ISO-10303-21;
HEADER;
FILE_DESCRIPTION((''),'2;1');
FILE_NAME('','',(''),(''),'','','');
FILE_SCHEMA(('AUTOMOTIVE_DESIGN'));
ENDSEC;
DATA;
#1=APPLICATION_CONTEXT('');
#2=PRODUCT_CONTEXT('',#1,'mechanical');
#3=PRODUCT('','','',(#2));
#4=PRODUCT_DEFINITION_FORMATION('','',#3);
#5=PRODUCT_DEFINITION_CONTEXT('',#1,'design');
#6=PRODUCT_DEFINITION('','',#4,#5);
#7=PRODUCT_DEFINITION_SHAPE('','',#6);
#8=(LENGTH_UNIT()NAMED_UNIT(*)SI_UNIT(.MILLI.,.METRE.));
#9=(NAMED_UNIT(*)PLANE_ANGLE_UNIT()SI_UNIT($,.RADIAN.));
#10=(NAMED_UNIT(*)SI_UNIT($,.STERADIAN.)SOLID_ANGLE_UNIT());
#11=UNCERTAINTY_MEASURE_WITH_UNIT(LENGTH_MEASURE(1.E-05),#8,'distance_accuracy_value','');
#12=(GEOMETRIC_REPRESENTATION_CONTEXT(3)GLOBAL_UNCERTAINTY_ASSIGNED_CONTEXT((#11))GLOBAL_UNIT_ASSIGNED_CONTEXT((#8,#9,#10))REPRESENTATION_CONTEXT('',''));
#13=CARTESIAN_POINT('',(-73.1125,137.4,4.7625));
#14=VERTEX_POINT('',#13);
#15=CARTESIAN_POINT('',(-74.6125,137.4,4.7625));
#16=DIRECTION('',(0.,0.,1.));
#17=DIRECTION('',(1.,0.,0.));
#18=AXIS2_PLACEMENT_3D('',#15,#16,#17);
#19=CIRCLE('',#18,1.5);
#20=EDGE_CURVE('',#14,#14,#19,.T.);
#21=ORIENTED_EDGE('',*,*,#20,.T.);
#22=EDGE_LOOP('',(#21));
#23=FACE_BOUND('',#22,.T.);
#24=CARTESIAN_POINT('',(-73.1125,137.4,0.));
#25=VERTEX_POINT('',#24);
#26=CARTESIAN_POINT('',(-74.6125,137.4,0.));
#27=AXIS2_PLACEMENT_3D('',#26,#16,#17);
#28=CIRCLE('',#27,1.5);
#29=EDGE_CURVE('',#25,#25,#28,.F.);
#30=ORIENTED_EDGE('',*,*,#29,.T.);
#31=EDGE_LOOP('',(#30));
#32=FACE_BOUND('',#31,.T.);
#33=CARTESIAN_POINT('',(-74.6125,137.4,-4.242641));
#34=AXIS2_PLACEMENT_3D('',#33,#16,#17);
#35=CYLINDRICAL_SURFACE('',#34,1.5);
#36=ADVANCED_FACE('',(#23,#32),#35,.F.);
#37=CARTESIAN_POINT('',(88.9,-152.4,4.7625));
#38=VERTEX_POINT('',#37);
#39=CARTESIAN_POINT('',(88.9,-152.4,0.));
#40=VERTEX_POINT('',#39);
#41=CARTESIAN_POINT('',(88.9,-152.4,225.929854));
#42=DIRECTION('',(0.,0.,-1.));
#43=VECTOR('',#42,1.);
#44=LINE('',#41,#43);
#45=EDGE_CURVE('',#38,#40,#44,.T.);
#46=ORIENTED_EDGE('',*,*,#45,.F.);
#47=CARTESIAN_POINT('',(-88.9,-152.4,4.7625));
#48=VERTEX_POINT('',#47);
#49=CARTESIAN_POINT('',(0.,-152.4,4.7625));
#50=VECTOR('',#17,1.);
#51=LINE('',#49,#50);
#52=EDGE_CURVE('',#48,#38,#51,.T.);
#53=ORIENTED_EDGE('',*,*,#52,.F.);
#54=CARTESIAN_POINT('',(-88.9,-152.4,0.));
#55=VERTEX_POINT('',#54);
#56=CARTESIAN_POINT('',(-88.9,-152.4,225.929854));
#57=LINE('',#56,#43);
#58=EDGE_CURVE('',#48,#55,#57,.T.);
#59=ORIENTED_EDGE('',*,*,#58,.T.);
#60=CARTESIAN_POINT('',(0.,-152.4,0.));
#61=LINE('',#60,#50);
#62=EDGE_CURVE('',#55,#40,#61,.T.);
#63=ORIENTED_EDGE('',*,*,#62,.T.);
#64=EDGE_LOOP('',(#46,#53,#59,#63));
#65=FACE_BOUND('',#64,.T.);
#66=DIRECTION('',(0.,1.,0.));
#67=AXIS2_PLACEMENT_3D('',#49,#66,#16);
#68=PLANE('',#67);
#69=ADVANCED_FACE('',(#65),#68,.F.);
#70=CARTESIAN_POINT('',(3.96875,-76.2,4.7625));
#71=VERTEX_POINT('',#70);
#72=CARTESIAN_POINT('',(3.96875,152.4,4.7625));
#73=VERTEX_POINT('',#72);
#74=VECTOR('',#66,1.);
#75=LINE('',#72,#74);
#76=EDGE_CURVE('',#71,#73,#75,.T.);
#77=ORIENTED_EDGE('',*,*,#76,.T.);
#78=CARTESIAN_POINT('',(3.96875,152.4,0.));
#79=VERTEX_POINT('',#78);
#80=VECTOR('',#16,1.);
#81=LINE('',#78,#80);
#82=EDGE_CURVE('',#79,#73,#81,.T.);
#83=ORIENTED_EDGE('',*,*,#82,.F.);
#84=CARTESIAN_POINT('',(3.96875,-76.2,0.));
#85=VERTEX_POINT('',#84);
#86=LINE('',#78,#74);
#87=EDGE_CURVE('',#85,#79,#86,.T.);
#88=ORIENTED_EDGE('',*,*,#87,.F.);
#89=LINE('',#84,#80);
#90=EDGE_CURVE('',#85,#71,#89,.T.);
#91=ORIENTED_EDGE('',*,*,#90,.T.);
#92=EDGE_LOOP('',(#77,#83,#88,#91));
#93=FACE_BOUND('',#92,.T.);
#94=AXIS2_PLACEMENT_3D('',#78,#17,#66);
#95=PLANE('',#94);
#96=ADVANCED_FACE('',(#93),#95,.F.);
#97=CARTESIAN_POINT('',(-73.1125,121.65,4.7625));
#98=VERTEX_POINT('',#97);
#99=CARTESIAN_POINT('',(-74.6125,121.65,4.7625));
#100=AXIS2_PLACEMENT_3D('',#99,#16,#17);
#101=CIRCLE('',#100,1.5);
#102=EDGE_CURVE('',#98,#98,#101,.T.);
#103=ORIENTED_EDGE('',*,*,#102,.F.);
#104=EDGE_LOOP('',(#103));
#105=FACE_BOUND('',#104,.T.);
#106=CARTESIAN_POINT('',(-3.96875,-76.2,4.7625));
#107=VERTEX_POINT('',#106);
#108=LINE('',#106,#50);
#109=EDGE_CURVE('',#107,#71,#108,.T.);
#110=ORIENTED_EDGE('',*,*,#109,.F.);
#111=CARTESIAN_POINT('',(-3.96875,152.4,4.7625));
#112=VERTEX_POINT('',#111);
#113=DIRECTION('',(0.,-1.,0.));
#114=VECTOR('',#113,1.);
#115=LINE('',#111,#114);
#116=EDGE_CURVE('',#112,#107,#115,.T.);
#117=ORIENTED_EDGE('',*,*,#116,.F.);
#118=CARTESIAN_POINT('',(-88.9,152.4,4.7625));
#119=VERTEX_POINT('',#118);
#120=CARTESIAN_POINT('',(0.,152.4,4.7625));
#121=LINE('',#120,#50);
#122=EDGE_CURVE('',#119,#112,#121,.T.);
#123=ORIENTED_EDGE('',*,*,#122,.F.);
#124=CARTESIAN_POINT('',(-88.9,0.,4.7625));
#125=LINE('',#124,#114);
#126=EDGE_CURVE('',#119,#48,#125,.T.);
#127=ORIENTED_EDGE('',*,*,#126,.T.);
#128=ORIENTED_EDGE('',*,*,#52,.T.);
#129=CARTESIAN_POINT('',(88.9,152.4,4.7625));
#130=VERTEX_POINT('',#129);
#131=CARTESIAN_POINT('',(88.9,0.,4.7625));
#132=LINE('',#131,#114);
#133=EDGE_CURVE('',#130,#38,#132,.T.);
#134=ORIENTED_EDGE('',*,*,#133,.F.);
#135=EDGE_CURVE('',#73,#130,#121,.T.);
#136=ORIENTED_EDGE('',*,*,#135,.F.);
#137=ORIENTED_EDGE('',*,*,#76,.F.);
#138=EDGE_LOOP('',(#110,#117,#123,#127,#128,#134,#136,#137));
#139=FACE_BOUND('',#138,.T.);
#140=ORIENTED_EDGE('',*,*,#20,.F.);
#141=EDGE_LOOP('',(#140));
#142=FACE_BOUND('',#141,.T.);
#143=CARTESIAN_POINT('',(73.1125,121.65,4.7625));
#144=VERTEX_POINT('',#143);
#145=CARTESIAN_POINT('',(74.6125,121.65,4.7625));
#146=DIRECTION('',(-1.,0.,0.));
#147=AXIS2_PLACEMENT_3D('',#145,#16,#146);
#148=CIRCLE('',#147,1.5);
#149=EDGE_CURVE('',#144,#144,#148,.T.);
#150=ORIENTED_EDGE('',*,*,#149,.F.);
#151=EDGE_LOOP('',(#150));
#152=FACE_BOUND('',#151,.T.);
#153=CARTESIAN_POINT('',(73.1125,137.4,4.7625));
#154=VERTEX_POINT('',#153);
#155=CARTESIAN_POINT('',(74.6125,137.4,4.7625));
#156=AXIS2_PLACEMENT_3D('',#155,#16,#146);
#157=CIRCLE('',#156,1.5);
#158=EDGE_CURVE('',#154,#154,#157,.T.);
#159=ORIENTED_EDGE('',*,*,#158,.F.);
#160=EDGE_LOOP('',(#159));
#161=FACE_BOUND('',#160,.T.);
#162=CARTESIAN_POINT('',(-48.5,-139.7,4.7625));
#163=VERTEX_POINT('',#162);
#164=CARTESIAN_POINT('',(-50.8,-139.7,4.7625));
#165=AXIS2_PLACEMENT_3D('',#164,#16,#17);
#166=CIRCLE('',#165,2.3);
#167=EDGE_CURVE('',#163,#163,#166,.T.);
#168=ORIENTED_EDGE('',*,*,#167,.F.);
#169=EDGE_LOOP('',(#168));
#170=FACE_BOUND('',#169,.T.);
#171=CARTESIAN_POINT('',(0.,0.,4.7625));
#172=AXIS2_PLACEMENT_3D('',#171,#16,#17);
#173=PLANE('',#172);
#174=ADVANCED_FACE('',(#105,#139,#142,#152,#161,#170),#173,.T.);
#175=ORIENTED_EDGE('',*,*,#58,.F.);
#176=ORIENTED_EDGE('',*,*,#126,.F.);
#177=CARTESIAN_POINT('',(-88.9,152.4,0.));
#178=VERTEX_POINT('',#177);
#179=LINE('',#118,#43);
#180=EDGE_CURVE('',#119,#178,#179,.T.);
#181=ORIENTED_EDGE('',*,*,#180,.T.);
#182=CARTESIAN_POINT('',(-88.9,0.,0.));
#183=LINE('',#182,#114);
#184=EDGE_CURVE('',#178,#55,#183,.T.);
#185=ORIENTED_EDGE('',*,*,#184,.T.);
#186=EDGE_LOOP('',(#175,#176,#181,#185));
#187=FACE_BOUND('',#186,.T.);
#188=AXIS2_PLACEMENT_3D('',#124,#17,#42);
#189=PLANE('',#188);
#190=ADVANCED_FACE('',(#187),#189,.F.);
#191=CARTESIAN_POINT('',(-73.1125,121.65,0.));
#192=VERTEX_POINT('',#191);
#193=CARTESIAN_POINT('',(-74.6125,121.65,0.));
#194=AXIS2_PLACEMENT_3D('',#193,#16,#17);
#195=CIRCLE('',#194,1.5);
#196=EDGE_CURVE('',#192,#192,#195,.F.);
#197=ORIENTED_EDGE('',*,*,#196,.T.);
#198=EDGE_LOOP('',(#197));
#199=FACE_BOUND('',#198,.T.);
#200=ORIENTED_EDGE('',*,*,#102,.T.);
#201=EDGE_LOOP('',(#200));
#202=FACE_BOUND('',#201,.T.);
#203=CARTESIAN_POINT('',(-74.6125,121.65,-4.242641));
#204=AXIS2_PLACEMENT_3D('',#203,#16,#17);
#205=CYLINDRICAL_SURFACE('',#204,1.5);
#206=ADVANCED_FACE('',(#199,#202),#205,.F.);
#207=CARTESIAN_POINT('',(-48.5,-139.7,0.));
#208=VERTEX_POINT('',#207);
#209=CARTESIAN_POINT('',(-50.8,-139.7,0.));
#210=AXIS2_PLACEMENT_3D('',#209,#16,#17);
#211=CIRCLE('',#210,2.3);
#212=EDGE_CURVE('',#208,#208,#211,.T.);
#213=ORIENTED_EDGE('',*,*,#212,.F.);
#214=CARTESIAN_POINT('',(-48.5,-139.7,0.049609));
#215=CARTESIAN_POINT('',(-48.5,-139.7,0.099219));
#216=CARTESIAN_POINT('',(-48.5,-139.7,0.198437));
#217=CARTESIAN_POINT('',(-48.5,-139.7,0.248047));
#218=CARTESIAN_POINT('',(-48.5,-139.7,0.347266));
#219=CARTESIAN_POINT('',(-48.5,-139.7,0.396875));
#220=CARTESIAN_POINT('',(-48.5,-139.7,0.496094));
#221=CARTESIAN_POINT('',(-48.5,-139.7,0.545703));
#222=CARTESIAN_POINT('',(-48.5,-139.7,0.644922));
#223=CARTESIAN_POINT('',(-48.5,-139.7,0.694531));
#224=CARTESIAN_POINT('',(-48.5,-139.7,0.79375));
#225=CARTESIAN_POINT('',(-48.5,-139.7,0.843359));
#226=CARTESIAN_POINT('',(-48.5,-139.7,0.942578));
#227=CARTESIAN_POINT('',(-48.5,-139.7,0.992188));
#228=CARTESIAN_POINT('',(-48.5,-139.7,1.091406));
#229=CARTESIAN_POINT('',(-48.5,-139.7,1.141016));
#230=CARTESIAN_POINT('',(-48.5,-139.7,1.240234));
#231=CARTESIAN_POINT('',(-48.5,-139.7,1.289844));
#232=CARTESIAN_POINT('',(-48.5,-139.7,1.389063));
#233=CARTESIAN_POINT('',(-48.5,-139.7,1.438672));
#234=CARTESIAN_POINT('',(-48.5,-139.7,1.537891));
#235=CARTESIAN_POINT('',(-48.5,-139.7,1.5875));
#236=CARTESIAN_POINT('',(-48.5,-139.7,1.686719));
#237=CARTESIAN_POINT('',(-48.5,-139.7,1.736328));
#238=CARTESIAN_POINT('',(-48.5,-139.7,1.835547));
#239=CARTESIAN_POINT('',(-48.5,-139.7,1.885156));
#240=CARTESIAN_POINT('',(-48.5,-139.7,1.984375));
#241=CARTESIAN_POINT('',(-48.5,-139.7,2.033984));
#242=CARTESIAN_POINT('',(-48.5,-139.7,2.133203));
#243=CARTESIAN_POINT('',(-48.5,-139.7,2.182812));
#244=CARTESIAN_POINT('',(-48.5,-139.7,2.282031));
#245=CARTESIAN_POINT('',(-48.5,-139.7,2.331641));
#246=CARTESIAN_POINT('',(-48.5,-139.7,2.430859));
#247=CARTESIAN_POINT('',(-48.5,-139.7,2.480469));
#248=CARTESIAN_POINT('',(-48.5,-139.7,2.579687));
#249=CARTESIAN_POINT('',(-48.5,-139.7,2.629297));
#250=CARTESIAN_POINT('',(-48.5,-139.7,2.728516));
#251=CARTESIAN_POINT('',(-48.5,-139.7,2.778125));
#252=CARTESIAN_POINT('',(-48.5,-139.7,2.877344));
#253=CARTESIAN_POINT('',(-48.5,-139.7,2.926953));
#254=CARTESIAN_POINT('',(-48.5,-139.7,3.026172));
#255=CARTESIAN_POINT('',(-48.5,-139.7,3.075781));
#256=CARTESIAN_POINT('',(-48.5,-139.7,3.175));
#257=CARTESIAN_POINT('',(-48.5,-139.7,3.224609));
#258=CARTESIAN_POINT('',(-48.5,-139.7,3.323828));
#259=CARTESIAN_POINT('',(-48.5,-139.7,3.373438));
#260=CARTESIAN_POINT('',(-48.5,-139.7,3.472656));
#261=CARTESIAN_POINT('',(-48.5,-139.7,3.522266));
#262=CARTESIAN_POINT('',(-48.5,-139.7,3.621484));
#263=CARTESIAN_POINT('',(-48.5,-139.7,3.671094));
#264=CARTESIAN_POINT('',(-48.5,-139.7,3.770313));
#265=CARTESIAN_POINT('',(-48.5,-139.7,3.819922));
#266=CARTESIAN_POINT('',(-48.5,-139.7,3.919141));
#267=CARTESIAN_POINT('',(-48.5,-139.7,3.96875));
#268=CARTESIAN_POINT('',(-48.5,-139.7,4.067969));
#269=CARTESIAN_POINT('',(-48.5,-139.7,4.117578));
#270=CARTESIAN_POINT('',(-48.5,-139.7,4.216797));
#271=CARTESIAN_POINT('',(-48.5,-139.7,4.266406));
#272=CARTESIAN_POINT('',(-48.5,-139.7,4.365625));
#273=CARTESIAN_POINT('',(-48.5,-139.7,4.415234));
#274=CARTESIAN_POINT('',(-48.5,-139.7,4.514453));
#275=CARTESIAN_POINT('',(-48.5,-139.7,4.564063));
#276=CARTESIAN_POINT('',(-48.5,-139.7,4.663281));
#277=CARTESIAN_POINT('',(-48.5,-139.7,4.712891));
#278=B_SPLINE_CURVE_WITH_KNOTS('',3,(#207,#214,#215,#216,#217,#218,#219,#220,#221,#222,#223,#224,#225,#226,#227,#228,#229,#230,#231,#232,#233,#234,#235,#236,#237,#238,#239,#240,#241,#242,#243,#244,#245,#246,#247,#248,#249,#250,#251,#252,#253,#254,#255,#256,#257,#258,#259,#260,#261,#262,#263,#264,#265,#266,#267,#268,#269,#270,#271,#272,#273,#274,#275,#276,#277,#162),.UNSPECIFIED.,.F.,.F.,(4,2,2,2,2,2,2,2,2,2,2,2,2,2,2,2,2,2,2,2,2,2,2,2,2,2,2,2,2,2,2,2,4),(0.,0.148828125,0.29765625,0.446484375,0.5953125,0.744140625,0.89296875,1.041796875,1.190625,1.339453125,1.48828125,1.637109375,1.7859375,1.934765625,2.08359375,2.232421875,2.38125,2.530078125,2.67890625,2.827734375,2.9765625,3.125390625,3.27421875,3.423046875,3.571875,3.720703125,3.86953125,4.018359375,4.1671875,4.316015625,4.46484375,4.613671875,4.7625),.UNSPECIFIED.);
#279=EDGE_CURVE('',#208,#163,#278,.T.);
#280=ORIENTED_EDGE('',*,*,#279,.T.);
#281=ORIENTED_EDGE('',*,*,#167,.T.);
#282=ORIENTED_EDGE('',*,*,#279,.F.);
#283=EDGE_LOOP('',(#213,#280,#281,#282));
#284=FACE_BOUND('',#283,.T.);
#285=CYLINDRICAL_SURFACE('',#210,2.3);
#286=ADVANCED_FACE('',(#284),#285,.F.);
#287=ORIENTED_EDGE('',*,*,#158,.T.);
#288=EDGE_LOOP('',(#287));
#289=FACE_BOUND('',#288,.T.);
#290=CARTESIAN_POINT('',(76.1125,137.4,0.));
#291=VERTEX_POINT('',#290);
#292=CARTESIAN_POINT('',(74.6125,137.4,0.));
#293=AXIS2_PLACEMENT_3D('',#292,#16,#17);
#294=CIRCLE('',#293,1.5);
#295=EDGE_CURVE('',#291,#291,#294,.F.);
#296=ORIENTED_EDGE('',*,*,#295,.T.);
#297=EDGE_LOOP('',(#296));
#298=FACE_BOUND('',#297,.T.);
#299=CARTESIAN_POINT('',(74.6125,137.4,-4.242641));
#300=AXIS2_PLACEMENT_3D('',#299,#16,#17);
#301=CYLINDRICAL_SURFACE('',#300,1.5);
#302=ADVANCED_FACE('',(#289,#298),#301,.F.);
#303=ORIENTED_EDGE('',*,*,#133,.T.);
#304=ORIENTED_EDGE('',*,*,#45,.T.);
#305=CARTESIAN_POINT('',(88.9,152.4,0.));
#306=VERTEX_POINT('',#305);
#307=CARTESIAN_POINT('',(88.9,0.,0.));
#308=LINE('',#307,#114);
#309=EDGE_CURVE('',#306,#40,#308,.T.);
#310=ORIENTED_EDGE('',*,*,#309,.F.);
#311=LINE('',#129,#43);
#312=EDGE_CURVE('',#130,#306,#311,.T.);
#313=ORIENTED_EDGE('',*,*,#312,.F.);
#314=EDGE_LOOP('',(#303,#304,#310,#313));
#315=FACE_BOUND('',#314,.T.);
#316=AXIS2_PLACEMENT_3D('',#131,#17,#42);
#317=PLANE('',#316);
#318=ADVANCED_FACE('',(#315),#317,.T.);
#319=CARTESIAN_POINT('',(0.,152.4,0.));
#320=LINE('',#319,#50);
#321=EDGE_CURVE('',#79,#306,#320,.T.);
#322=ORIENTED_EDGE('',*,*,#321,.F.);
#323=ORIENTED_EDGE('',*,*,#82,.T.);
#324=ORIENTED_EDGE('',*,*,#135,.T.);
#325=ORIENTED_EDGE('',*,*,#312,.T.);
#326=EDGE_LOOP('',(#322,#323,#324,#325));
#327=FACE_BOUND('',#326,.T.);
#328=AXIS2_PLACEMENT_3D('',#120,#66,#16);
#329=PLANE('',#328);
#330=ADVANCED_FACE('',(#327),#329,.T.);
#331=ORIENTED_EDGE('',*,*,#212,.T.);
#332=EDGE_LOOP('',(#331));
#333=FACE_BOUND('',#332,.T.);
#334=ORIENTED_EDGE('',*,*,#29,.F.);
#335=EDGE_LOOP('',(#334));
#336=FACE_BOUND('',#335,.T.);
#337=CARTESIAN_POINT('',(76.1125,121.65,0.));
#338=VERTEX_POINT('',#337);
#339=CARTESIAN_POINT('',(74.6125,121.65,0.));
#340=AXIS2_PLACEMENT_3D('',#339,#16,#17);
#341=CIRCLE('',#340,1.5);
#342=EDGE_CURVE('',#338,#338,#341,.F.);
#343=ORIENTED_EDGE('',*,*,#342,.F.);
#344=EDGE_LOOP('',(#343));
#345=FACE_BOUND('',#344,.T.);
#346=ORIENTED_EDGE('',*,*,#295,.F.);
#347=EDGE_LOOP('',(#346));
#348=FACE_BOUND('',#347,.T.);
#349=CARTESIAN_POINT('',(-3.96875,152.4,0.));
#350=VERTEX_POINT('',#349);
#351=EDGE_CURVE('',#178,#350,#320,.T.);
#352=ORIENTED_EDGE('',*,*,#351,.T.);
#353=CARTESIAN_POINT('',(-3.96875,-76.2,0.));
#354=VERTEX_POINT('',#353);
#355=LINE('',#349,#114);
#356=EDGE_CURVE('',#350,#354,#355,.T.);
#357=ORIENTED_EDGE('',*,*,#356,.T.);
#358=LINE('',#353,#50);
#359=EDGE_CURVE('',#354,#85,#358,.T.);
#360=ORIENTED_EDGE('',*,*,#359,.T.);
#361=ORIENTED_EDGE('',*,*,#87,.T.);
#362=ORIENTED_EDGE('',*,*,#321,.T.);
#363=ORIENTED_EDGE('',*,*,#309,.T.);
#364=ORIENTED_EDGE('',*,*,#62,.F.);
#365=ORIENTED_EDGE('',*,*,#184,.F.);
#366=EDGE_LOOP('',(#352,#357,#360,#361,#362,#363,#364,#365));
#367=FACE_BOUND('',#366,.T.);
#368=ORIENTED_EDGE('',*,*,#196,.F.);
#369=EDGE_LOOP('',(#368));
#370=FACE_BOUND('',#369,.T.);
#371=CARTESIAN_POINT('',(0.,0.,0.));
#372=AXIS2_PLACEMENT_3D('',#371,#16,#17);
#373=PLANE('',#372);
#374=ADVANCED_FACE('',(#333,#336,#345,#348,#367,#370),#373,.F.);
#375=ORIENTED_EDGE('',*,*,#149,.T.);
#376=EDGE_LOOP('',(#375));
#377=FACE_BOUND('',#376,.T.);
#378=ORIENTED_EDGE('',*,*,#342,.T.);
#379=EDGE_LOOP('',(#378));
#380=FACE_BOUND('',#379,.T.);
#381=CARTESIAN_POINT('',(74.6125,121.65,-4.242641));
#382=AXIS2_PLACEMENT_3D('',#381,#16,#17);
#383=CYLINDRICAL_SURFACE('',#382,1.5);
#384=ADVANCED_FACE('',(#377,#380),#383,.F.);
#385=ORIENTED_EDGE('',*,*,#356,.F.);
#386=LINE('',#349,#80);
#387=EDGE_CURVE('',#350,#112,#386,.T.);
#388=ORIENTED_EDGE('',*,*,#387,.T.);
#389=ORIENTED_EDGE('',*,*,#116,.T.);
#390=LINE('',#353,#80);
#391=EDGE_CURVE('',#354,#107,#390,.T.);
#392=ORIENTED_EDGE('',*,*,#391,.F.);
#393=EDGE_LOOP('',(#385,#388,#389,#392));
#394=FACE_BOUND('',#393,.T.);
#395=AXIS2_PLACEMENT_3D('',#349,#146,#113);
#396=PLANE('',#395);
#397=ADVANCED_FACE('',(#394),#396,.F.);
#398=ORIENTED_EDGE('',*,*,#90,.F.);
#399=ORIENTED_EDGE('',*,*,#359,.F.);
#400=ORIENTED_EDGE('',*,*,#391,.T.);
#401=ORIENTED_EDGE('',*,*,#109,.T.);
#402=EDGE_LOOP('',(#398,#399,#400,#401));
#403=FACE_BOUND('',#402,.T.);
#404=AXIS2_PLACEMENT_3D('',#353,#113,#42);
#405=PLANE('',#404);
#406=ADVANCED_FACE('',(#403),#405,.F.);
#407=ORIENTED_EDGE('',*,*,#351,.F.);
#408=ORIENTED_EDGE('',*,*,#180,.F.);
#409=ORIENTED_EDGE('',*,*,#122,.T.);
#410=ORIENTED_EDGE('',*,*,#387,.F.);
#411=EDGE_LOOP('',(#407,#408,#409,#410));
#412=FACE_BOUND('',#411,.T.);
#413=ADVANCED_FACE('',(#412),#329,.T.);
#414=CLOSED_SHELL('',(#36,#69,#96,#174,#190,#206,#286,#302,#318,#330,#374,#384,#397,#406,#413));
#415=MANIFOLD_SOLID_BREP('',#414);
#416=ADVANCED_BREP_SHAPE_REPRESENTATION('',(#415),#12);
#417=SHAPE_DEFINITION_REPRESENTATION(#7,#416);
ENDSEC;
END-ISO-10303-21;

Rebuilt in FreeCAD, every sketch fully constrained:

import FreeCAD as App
import Part
import Sketcher

V = App.Vector
Q = App.Units.Quantity

doc = App.newDocument("Part")
body = doc.addObject("PartDesign::Body", "Body")

# Sketch on XY plane
sketch1 = doc.addObject("Sketcher::SketchObject", "Sketch")
body.addObject(sketch1)
sketch1.AttachmentSupport = (doc.XY_Plane, [""])
sketch1.MapMode = "FlatFace"
sketch1.addGeometry([
    Part.LineSegment(V(-88.9, 152.4, 0), V(-88.9, 108.2, 0)),  # 0
    Part.LineSegment(V(-88.9, 108.2, 0), V(-93.7, 108.2, 0)),  # 1
    Part.LineSegment(V(-93.7, 108.2, 0), V(-93.7, 64, 0)),  # 2
    Part.LineSegment(V(-93.7, 64, 0), V(-88.9, 64, 0)),  # 3
    Part.LineSegment(V(-88.9, 64, 0), V(-88.9, 19.7, 0)),  # 4
    Part.LineSegment(V(-88.9, 19.7, 0), V(-93.7, 19.7, 0)),  # 5
    Part.LineSegment(V(-93.7, 19.7, 0), V(-93.7, -24.5, 0)),  # 6
    Part.LineSegment(V(-93.7, -24.5, 0), V(-88.9, -24.5, 0)),  # 7
    Part.LineSegment(V(-88.9, -24.5, 0), V(-88.9, -68.7, 0)),  # 8
    Part.LineSegment(V(-88.9, -68.7, 0), V(-93.7, -68.7, 0)),  # 9
    Part.LineSegment(V(-93.7, -68.7, 0), V(-93.7, -112.9, 0)),  # 10
    Part.LineSegment(V(-93.7, -112.9, 0), V(-88.9, -112.9, 0)),  # 11
    Part.LineSegment(V(-88.9, -112.9, 0), V(-88.9, -157.2, 0)),  # 12
    Part.LineSegment(V(-88.9, -157.2, 0), V(-66.9, -157.2, 0)),  # 13
    Part.LineSegment(V(-66.9, -157.2, 0), V(-66.9, -152.4, 0)),  # 14
    Part.LineSegment(V(-66.9, -152.4, 0), V(-40.1, -152.4, 0)),  # 15
    Part.LineSegment(V(-40.1, -152.4, 0), V(-40.1, -157.2, 0)),  # 16
    Part.LineSegment(V(-40.1, -157.2, 0), V(-13.4, -157.2, 0)),  # 17
    Part.LineSegment(V(-13.4, -157.2, 0), V(-13.4, -152.4, 0)),  # 18
    Part.LineSegment(V(-13.4, -152.4, 0), V(13.4, -152.4, 0)),  # 19
    Part.LineSegment(V(13.4, -152.4, 0), V(13.4, -157.2, 0)),  # 20
    Part.LineSegment(V(13.4, -157.2, 0), V(40.1, -157.2, 0)),  # 21
    Part.LineSegment(V(40.1, -157.2, 0), V(40.1, -152.4, 0)),  # 22
    Part.LineSegment(V(40.1, -152.4, 0), V(66.9, -152.4, 0)),  # 23
    Part.LineSegment(V(66.9, -152.4, 0), V(66.9, -157.2, 0)),  # 24
    Part.LineSegment(V(66.9, -157.2, 0), V(88.9, -157.2, 0)),  # 25
    Part.LineSegment(V(88.9, -157.2, 0), V(88.9, -112.9, 0)),  # 26
    Part.LineSegment(V(88.9, -112.9, 0), V(93.7, -112.9, 0)),  # 27
    Part.LineSegment(V(93.7, -112.9, 0), V(93.7, -68.7, 0)),  # 28
    Part.LineSegment(V(93.7, -68.7, 0), V(88.9, -68.7, 0)),  # 29
    Part.LineSegment(V(88.9, -68.7, 0), V(88.9, -24.5, 0)),  # 30
    Part.LineSegment(V(88.9, -24.5, 0), V(93.7, -24.5, 0)),  # 31
    Part.LineSegment(V(93.7, -24.5, 0), V(93.7, 19.7, 0)),  # 32
    Part.LineSegment(V(93.7, 19.7, 0), V(88.9, 19.7, 0)),  # 33
    Part.LineSegment(V(88.9, 19.7, 0), V(88.9, 64, 0)),  # 34
    Part.LineSegment(V(88.9, 64, 0), V(93.7, 64, 0)),  # 35
    Part.LineSegment(V(93.7, 64, 0), V(93.7, 108.2, 0)),  # 36
    Part.LineSegment(V(93.7, 108.2, 0), V(88.9, 108.2, 0)),  # 37
    Part.LineSegment(V(88.9, 108.2, 0), V(88.9, 152.4, 0)),  # 38
    Part.LineSegment(V(88.9, 152.4, 0), V(-88.9, 152.4, 0)),  # 39
], False)
sketch1.addConstraint([
    Sketcher.Constraint("Coincident", 0, 2, 1, 1),
    Sketcher.Constraint("Coincident", 1, 2, 2, 1),
    Sketcher.Constraint("Coincident", 2, 2, 3, 1),
    Sketcher.Constraint("Coincident", 3, 2, 4, 1),
    Sketcher.Constraint("Coincident", 4, 2, 5, 1),
    Sketcher.Constraint("Coincident", 5, 2, 6, 1),
    Sketcher.Constraint("Coincident", 6, 2, 7, 1),
    Sketcher.Constraint("Coincident", 7, 2, 8, 1),
    Sketcher.Constraint("Coincident", 8, 2, 9, 1),
    Sketcher.Constraint("Coincident", 9, 2, 10, 1),
    Sketcher.Constraint("Coincident", 10, 2, 11, 1),
    Sketcher.Constraint("Coincident", 11, 2, 12, 1),
    Sketcher.Constraint("Coincident", 12, 2, 13, 1),
    Sketcher.Constraint("Coincident", 13, 2, 14, 1),
    Sketcher.Constraint("Coincident", 14, 2, 15, 1),
    Sketcher.Constraint("Coincident", 15, 2, 16, 1),
    Sketcher.Constraint("Coincident", 16, 2, 17, 1),
    Sketcher.Constraint("Coincident", 17, 2, 18, 1),
    Sketcher.Constraint("Coincident", 18, 2, 19, 1),
    Sketcher.Constraint("Coincident", 19, 2, 20, 1),
    Sketcher.Constraint("Coincident", 20, 2, 21, 1),
    Sketcher.Constraint("Coincident", 21, 2, 22, 1),
    Sketcher.Constraint("Coincident", 22, 2, 23, 1),
    Sketcher.Constraint("Coincident", 23, 2, 24, 1),
    Sketcher.Constraint("Coincident", 24, 2, 25, 1),
    Sketcher.Constraint("Coincident", 25, 2, 26, 1),
    Sketcher.Constraint("Coincident", 26, 2, 27, 1),
    Sketcher.Constraint("Coincident", 27, 2, 28, 1),
    Sketcher.Constraint("Coincident", 28, 2, 29, 1),
    Sketcher.Constraint("Coincident", 29, 2, 30, 1),
    Sketcher.Constraint("Coincident", 30, 2, 31, 1),
    Sketcher.Constraint("Coincident", 31, 2, 32, 1),
    Sketcher.Constraint("Coincident", 32, 2, 33, 1),
    Sketcher.Constraint("Coincident", 33, 2, 34, 1),
    Sketcher.Constraint("Coincident", 34, 2, 35, 1),
    Sketcher.Constraint("Coincident", 35, 2, 36, 1),
    Sketcher.Constraint("Coincident", 36, 2, 37, 1),
    Sketcher.Constraint("Coincident", 37, 2, 38, 1),
    Sketcher.Constraint("Coincident", 38, 2, 39, 1),
    Sketcher.Constraint("Coincident", 39, 2, 0, 1),
    Sketcher.Constraint("Vertical", 0),
    Sketcher.Constraint("Horizontal", 1),
    Sketcher.Constraint("Vertical", 2),
    Sketcher.Constraint("Horizontal", 3),
    Sketcher.Constraint("Vertical", 4),
    Sketcher.Constraint("Horizontal", 5),
    Sketcher.Constraint("Vertical", 6),
    Sketcher.Constraint("Horizontal", 7),
    Sketcher.Constraint("Vertical", 8),
    Sketcher.Constraint("Horizontal", 9),
    Sketcher.Constraint("Vertical", 10),
    Sketcher.Constraint("Horizontal", 11),
    Sketcher.Constraint("Vertical", 12),
    Sketcher.Constraint("Horizontal", 13),
    Sketcher.Constraint("Vertical", 14),
    Sketcher.Constraint("Horizontal", 15),
    Sketcher.Constraint("Vertical", 16),
    Sketcher.Constraint("Horizontal", 17),
    Sketcher.Constraint("Vertical", 18),
    Sketcher.Constraint("Horizontal", 19),
    Sketcher.Constraint("Vertical", 20),
    Sketcher.Constraint("Horizontal", 21),
    Sketcher.Constraint("Vertical", 22),
    Sketcher.Constraint("Horizontal", 23),
    Sketcher.Constraint("Vertical", 24),
    Sketcher.Constraint("Horizontal", 25),
    Sketcher.Constraint("Vertical", 26),
    Sketcher.Constraint("Horizontal", 27),
    Sketcher.Constraint("Vertical", 28),
    Sketcher.Constraint("Horizontal", 29),
    Sketcher.Constraint("Vertical", 30),
    Sketcher.Constraint("Horizontal", 31),
    Sketcher.Constraint("Vertical", 32),
    Sketcher.Constraint("Horizontal", 33),
    Sketcher.Constraint("Vertical", 34),
    Sketcher.Constraint("Horizontal", 35),
    Sketcher.Constraint("Vertical", 36),
    Sketcher.Constraint("Horizontal", 37),
    Sketcher.Constraint("Vertical", 38),
    Sketcher.Constraint("Horizontal", 39),
    Sketcher.Constraint("Symmetric", 17, 2, 20, 2, -2),
    Sketcher.Constraint("Symmetric", 15, 2, 22, 2, -2),
    Sketcher.Constraint("Symmetric", 13, 2, 24, 2, -2),
    Sketcher.Constraint("Symmetric", 11, 2, 26, 2, -2),
    Sketcher.Constraint("Symmetric", 9, 2, 28, 2, -2),
    Sketcher.Constraint("Symmetric", 7, 2, 30, 2, -2),
    Sketcher.Constraint("Symmetric", 5, 2, 32, 2, -2),
    Sketcher.Constraint("Symmetric", 3, 2, 34, 2, -2),
    Sketcher.Constraint("Symmetric", 1, 2, 36, 2, -2),
    Sketcher.Constraint("Horizontal", 13, 2, 16, 2),
    Sketcher.Constraint("Horizontal", 15, 2, 18, 2),
    Sketcher.Constraint("Vertical", 0, 2, 3, 2),
    Sketcher.Constraint("Vertical", 2, 2, 5, 2),
    Sketcher.Constraint("Vertical", 4, 2, 7, 2),
    Sketcher.Constraint("Vertical", 6, 2, 9, 2),
    Sketcher.Constraint("Vertical", 8, 2, 11, 2),
    Sketcher.Constraint("Vertical", 34, 2, 37, 2),
    Sketcher.Constraint("Equal", 15, 17),
    Sketcher.Constraint("Equal", 17, 19),
    Sketcher.Constraint("Equal", 0, 2),
    Sketcher.Constraint("Equal", 2, 4),
    Sketcher.Constraint("Equal", 4, 6),
    Sketcher.Constraint("Equal", 6, 8),
    Sketcher.Constraint("Equal", 8, 10),
    Sketcher.Constraint("Equal", 10, 12),
    Sketcher.Constraint("Equal", 37, 14),
    Sketcher.Constraint("DistanceX", 39, 2, 39, 1, Q("7 in")),
    Sketcher.Constraint("DistanceY", 14, 2, -1, 1, Q("6 in")),
    Sketcher.Constraint("DistanceY", -1, 1, 38, 2, Q("6 in")),
    Sketcher.Constraint("DistanceX", 1, 2, 1, 1, Q("0.1875 in")),
    Sketcher.Constraint("DistanceX", 13, 1, 13, 2, 21.998214),
])
pad1 = doc.addObject("PartDesign::Pad", "Pad")
body.addObject(pad1)
pad1.Profile = sketch1
pad1.Length = Q("0.1875 in")

# Sketch on XY plane
sketch2 = doc.addObject("Sketcher::SketchObject", "Sketch001")
body.addObject(sketch2)
sketch2.AttachmentSupport = (doc.XY_Plane, [""])
sketch2.MapMode = "FlatFace"
sketch2.AttachmentOffset = App.Placement(V(0, 0, 0.1875 * 25.4), App.Rotation())
sketch2.addGeometry([
    Part.LineSegment(V(-4, 152, 0), V(-4, -76, 0)),
    Part.LineSegment(V(-4, -76, 0), V(4, -76, 0)),
    Part.LineSegment(V(4, -76, 0), V(4, 152, 0)),
    Part.LineSegment(V(4, 152, 0), V(-4, 152, 0)),
], False)
sketch2.addConstraint([
    Sketcher.Constraint("Coincident", 0, 2, 1, 1),
    Sketcher.Constraint("Coincident", 1, 2, 2, 1),
    Sketcher.Constraint("Coincident", 2, 2, 3, 1),
    Sketcher.Constraint("Coincident", 3, 2, 0, 1),
    Sketcher.Constraint("Vertical", 0),
    Sketcher.Constraint("Horizontal", 1),
    Sketcher.Constraint("Vertical", 2),
    Sketcher.Constraint("Horizontal", 3),
    Sketcher.Constraint("DistanceY", 0, 2, 0, 1, Q("9 in")),
    Sketcher.Constraint("DistanceY", 0, 2, -1, 1, Q("3 in")),
    Sketcher.Constraint("DistanceX", 1, 1, 1, 2, Q("0.3125 in")),
    Sketcher.Constraint("DistanceX", 0, 2, -1, 1, Q("0.15625 in")),
])
pocket1 = doc.addObject("PartDesign::Pocket", "Pocket")
body.addObject(pocket1)
pocket1.Profile = sketch2
pocket1.Type = "ThroughAll"

# Sketch on XY plane
sketch3 = doc.addObject("Sketcher::SketchObject", "Sketch002")
body.addObject(sketch3)
sketch3.AttachmentSupport = (doc.XY_Plane, [""])
sketch3.MapMode = "FlatFace"
sketch3.AttachmentOffset = App.Placement(V(0, 0, 0.1875 * 25.4), App.Rotation())
sketch3.addGeometry(Part.Circle(V(-50.8, -139.7, 0), V(0, 0, 1), 2.3), False)
sketch3.addConstraint([
    Sketcher.Constraint("DistanceX", 0, 3, -1, 1, Q("2 in")),
    Sketcher.Constraint("DistanceY", 0, 3, -1, 1, Q("5.5 in")),
    Sketcher.Constraint("Diameter", 0, 4.6),
])
pocket2 = doc.addObject("PartDesign::Pocket", "Pocket001")
body.addObject(pocket2)
pocket2.Profile = sketch3
pocket2.Type = "ThroughAll"

# Sketch on XY plane
sketch4 = doc.addObject("Sketcher::SketchObject", "Sketch003")
body.addObject(sketch4)
sketch4.AttachmentSupport = (doc.XY_Plane, [""])
sketch4.MapMode = "FlatFace"
sketch4.AttachmentOffset = App.Placement(V(0, 0, 0.1875 * 25.4), App.Rotation())
sketch4.addGeometry([
    Part.Circle(V(-74.6, 137.4, 0), V(0, 0, 1), 1.5),
    Part.Circle(V(-74.6, 121.7, 0), V(0, 0, 1), 1.5),
    Part.Circle(V(74.6, 121.7, 0), V(0, 0, 1), 1.5),
    Part.Circle(V(74.6, 137.4, 0), V(0, 0, 1), 1.5),
], False)
sketch4.addConstraint([
    Sketcher.Constraint("Equal", 0, 1),
    Sketcher.Constraint("Equal", 1, 2),
    Sketcher.Constraint("Equal", 2, 3),
    Sketcher.Constraint("Symmetric", 1, 3, 2, 3, -2),
    Sketcher.Constraint("Symmetric", 0, 3, 3, 3, -2),
    Sketcher.Constraint("Vertical", 0, 3, 1, 3),
    Sketcher.Constraint("Diameter", 0, 3.0),
    Sketcher.Constraint("DistanceX", 0, 3, -1, 1, Q("2.9375 in")),
    Sketcher.Constraint("DistanceY", -1, 1, 0, 3, 137.4),
    Sketcher.Constraint("DistanceY", -1, 1, 1, 3, 121.65),
])
pocket3 = doc.addObject("PartDesign::Pocket", "Pocket002")
body.addObject(pocket3)
pocket3.Profile = sketch4
pocket3.Length = Q("0.1875 in")

# Sketch on XY plane
sketch5 = doc.addObject("Sketcher::SketchObject", "Sketch004")
body.addObject(sketch5)
sketch5.AttachmentSupport = (doc.XY_Plane, [""])
sketch5.MapMode = "FlatFace"
sketch5.AttachmentOffset = App.Placement(V(0, 0, 0.1875 * 25.4), App.Rotation())
sketch5.addGeometry([
    Part.LineSegment(V(-93.7, 64, 0), V(-93.7, 19.7, 0)),  # 0
    Part.LineSegment(V(-93.7, 19.7, 0), V(-88.9, 19.7, 0)),  # 1
    Part.LineSegment(V(-88.9, 19.7, 0), V(-88.9, 64, 0)),  # 2
    Part.LineSegment(V(-88.9, 64, 0), V(-93.7, 64, 0)),  # 3
    Part.LineSegment(V(-93.7, -24.5, 0), V(-93.7, -68.7, 0)),  # 4
    Part.LineSegment(V(-93.7, -68.7, 0), V(-88.9, -68.7, 0)),  # 5
    Part.LineSegment(V(-88.9, -68.7, 0), V(-88.9, -24.5, 0)),  # 6
    Part.LineSegment(V(-88.9, -24.5, 0), V(-93.7, -24.5, 0)),  # 7
    Part.LineSegment(V(88.9, 64, 0), V(88.9, 19.7, 0)),  # 8
    Part.LineSegment(V(88.9, 19.7, 0), V(93.7, 19.7, 0)),  # 9
    Part.LineSegment(V(93.7, 19.7, 0), V(93.7, 64, 0)),  # 10
    Part.LineSegment(V(93.7, 64, 0), V(88.9, 64, 0)),  # 11
    Part.LineSegment(V(88.9, -24.5, 0), V(88.9, -68.7, 0)),  # 12
    Part.LineSegment(V(88.9, -68.7, 0), V(93.7, -68.7, 0)),  # 13
    Part.LineSegment(V(93.7, -68.7, 0), V(93.7, -24.5, 0)),  # 14
    Part.LineSegment(V(93.7, -24.5, 0), V(88.9, -24.5, 0)),  # 15
], False)
sketch5.addConstraint([
    Sketcher.Constraint("Coincident", 0, 2, 1, 1),
    Sketcher.Constraint("Coincident", 1, 2, 2, 1),
    Sketcher.Constraint("Coincident", 2, 2, 3, 1),
    Sketcher.Constraint("Coincident", 3, 2, 0, 1),
    Sketcher.Constraint("Coincident", 4, 2, 5, 1),
    Sketcher.Constraint("Coincident", 5, 2, 6, 1),
    Sketcher.Constraint("Coincident", 6, 2, 7, 1),
    Sketcher.Constraint("Coincident", 7, 2, 4, 1),
    Sketcher.Constraint("Coincident", 8, 2, 9, 1),
    Sketcher.Constraint("Coincident", 9, 2, 10, 1),
    Sketcher.Constraint("Coincident", 10, 2, 11, 1),
    Sketcher.Constraint("Coincident", 11, 2, 8, 1),
    Sketcher.Constraint("Coincident", 12, 2, 13, 1),
    Sketcher.Constraint("Coincident", 13, 2, 14, 1),
    Sketcher.Constraint("Coincident", 14, 2, 15, 1),
    Sketcher.Constraint("Coincident", 15, 2, 12, 1),
    Sketcher.Constraint("Vertical", 0),
    Sketcher.Constraint("Horizontal", 1),
    Sketcher.Constraint("Vertical", 2),
    Sketcher.Constraint("Horizontal", 3),
    Sketcher.Constraint("Vertical", 4),
    Sketcher.Constraint("Horizontal", 5),
    Sketcher.Constraint("Vertical", 6),
    Sketcher.Constraint("Horizontal", 7),
    Sketcher.Constraint("Vertical", 8),
    Sketcher.Constraint("Horizontal", 9),
    Sketcher.Constraint("Vertical", 10),
    Sketcher.Constraint("Horizontal", 11),
    Sketcher.Constraint("Vertical", 12),
    Sketcher.Constraint("Horizontal", 13),
    Sketcher.Constraint("Vertical", 14),
    Sketcher.Constraint("Horizontal", 15),
    Sketcher.Constraint("Symmetric", 1, 2, 8, 2, -2),
    Sketcher.Constraint("Symmetric", 3, 2, 10, 2, -2),
    Sketcher.Constraint("Symmetric", 5, 2, 12, 2, -2),
    Sketcher.Constraint("Symmetric", 7, 2, 14, 2, -2),
    Sketcher.Constraint("Vertical", 3, 2, 4, 2),
    Sketcher.Constraint("Vertical", 2, 2, 5, 2),
    Sketcher.Constraint("Equal", 2, 4),
    Sketcher.Constraint("DistanceX", 1, 2, 8, 2, Q("7 in")),
    Sketcher.Constraint("DistanceX", 1, 1, 1, 2, Q("0.1875 in")),
    Sketcher.Constraint("DistanceY", 0, 2, 0, 1, 44.223214),
    Sketcher.Constraint("DistanceY", -1, 1, 2, 2, 63.953571),
    Sketcher.Constraint("DistanceY", 4, 2, -1, 1, 68.716071),
])
pad2 = doc.addObject("PartDesign::Pad", "Pad001")
body.addObject(pad2)
pad2.Profile = sketch5
pad2.Length = Q("0.1875 in")
pad2.Reversed = True

# Sketch on XY plane
sketch6 = doc.addObject("Sketcher::SketchObject", "Sketch005")
body.addObject(sketch6)
sketch6.AttachmentSupport = (doc.XY_Plane, [""])
sketch6.MapMode = "FlatFace"
sketch6.AttachmentOffset = App.Placement(V(0, 0, 0.1875 * 25.4), App.Rotation())
sketch6.addGeometry([
    Part.LineSegment(V(-40.1, -152.4, 0), V(-40.1, -157.2, 0)),  # 0
    Part.LineSegment(V(-40.1, -157.2, 0), V(-13.4, -157.2, 0)),  # 1
    Part.LineSegment(V(-13.4, -157.2, 0), V(-13.4, -152.4, 0)),  # 2
    Part.LineSegment(V(-13.4, -152.4, 0), V(-40.1, -152.4, 0)),  # 3
    Part.LineSegment(V(13.4, -152.4, 0), V(13.4, -157.2, 0)),  # 4
    Part.LineSegment(V(13.4, -157.2, 0), V(40.1, -157.2, 0)),  # 5
    Part.LineSegment(V(40.1, -157.2, 0), V(40.1, -152.4, 0)),  # 6
    Part.LineSegment(V(40.1, -152.4, 0), V(13.4, -152.4, 0)),  # 7
], False)
sketch6.addConstraint([
    Sketcher.Constraint("Coincident", 0, 2, 1, 1),
    Sketcher.Constraint("Coincident", 1, 2, 2, 1),
    Sketcher.Constraint("Coincident", 2, 2, 3, 1),
    Sketcher.Constraint("Coincident", 3, 2, 0, 1),
    Sketcher.Constraint("Coincident", 4, 2, 5, 1),
    Sketcher.Constraint("Coincident", 5, 2, 6, 1),
    Sketcher.Constraint("Coincident", 6, 2, 7, 1),
    Sketcher.Constraint("Coincident", 7, 2, 4, 1),
    Sketcher.Constraint("Vertical", 0),
    Sketcher.Constraint("Horizontal", 1),
    Sketcher.Constraint("Vertical", 2),
    Sketcher.Constraint("Horizontal", 3),
    Sketcher.Constraint("Vertical", 4),
    Sketcher.Constraint("Horizontal", 5),
    Sketcher.Constraint("Vertical", 6),
    Sketcher.Constraint("Horizontal", 7),
    Sketcher.Constraint("Symmetric", 1, 2, 4, 2, -2),
    Sketcher.Constraint("Symmetric", 3, 2, 6, 2, -2),
    Sketcher.Constraint("DistanceY", 2, 2, -1, 1, Q("6 in")),
    Sketcher.Constraint("DistanceY", 0, 2, 0, 1, Q("0.1875 in")),
    Sketcher.Constraint("DistanceX", 1, 1, 1, 2, 26.760714),
    Sketcher.Constraint("DistanceX", 0, 2, -1, 1, 40.141071),
])
pocket4 = doc.addObject("PartDesign::Pocket", "Pocket003")
body.addObject(pocket4)
pocket4.Profile = sketch6
pocket4.Length = Q("0.1875 in")

# Sketch on XY plane
sketch7 = doc.addObject("Sketcher::SketchObject", "Sketch006")
body.addObject(sketch7)
sketch7.AttachmentSupport = (doc.XY_Plane, [""])
sketch7.MapMode = "FlatFace"
sketch7.addGeometry([
    Part.LineSegment(V(93.7, 108.2, 0), V(93.7, -112.9, 0)),  # 0
    Part.LineSegment(V(93.7, -112.9, 0), V(88.9, -112.9, 0)),  # 1
    Part.LineSegment(V(88.9, -112.9, 0), V(88.9, 108.2, 0)),  # 2
    Part.LineSegment(V(88.9, 108.2, 0), V(93.7, 108.2, 0)),  # 3
    Part.LineSegment(V(-88.9, 108.2, 0), V(-88.9, -112.9, 0)),  # 4
    Part.LineSegment(V(-88.9, -112.9, 0), V(-93.7, -112.9, 0)),  # 5
    Part.LineSegment(V(-93.7, -112.9, 0), V(-93.7, 108.2, 0)),  # 6
    Part.LineSegment(V(-93.7, 108.2, 0), V(-88.9, 108.2, 0)),  # 7
    Part.LineSegment(V(88.9, -152.4, 0), V(88.9, -157.2, 0)),  # 8
    Part.LineSegment(V(88.9, -157.2, 0), V(66.9, -157.2, 0)),  # 9
    Part.LineSegment(V(66.9, -157.2, 0), V(66.9, -152.4, 0)),  # 10
    Part.LineSegment(V(66.9, -152.4, 0), V(88.9, -152.4, 0)),  # 11
    Part.LineSegment(V(-66.9, -152.4, 0), V(-66.9, -157.2, 0)),  # 12
    Part.LineSegment(V(-66.9, -157.2, 0), V(-88.9, -157.2, 0)),  # 13
    Part.LineSegment(V(-88.9, -157.2, 0), V(-88.9, -152.4, 0)),  # 14
    Part.LineSegment(V(-88.9, -152.4, 0), V(-66.9, -152.4, 0)),  # 15
], False)
sketch7.addConstraint([
    Sketcher.Constraint("Coincident", 0, 2, 1, 1),
    Sketcher.Constraint("Coincident", 1, 2, 2, 1),
    Sketcher.Constraint("Coincident", 2, 2, 3, 1),
    Sketcher.Constraint("Coincident", 3, 2, 0, 1),
    Sketcher.Constraint("Coincident", 4, 2, 5, 1),
    Sketcher.Constraint("Coincident", 5, 2, 6, 1),
    Sketcher.Constraint("Coincident", 6, 2, 7, 1),
    Sketcher.Constraint("Coincident", 7, 2, 4, 1),
    Sketcher.Constraint("Coincident", 8, 2, 9, 1),
    Sketcher.Constraint("Coincident", 9, 2, 10, 1),
    Sketcher.Constraint("Coincident", 10, 2, 11, 1),
    Sketcher.Constraint("Coincident", 11, 2, 8, 1),
    Sketcher.Constraint("Coincident", 12, 2, 13, 1),
    Sketcher.Constraint("Coincident", 13, 2, 14, 1),
    Sketcher.Constraint("Coincident", 14, 2, 15, 1),
    Sketcher.Constraint("Coincident", 15, 2, 12, 1),
    Sketcher.Constraint("Vertical", 0),
    Sketcher.Constraint("Horizontal", 1),
    Sketcher.Constraint("Vertical", 2),
    Sketcher.Constraint("Horizontal", 3),
    Sketcher.Constraint("Vertical", 4),
    Sketcher.Constraint("Horizontal", 5),
    Sketcher.Constraint("Vertical", 6),
    Sketcher.Constraint("Horizontal", 7),
    Sketcher.Constraint("Vertical", 8),
    Sketcher.Constraint("Horizontal", 9),
    Sketcher.Constraint("Vertical", 10),
    Sketcher.Constraint("Horizontal", 11),
    Sketcher.Constraint("Vertical", 12),
    Sketcher.Constraint("Horizontal", 13),
    Sketcher.Constraint("Vertical", 14),
    Sketcher.Constraint("Horizontal", 15),
    Sketcher.Constraint("Symmetric", 1, 2, 4, 2, -2),
    Sketcher.Constraint("Symmetric", 3, 2, 6, 2, -2),
    Sketcher.Constraint("Symmetric", 9, 2, 12, 2, -2),
    Sketcher.Constraint("Symmetric", 11, 2, 14, 2, -2),
    Sketcher.Constraint("Vertical", 2, 2, 8, 2),
    Sketcher.Constraint("Equal", 7, 8),
    Sketcher.Constraint("DistanceY", 10, 2, -1, 1, Q("6 in")),
    Sketcher.Constraint("DistanceX", 4, 2, 1, 2, Q("7 in")),
    Sketcher.Constraint("DistanceX", 1, 2, 1, 1, Q("0.1875 in")),
    Sketcher.Constraint("DistanceY", 0, 2, 0, 1, 221.116071),
    Sketcher.Constraint("DistanceX", 9, 2, 9, 1, 21.998214),
    Sketcher.Constraint("DistanceY", 0, 2, -1, 1, 112.939286),
])
pocket5 = doc.addObject("PartDesign::Pocket", "Pocket004")
body.addObject(pocket5)
pocket5.Profile = sketch7
pocket5.Length = Q("0.1875 in")
pocket5.Reversed = True

doc.recompute()
